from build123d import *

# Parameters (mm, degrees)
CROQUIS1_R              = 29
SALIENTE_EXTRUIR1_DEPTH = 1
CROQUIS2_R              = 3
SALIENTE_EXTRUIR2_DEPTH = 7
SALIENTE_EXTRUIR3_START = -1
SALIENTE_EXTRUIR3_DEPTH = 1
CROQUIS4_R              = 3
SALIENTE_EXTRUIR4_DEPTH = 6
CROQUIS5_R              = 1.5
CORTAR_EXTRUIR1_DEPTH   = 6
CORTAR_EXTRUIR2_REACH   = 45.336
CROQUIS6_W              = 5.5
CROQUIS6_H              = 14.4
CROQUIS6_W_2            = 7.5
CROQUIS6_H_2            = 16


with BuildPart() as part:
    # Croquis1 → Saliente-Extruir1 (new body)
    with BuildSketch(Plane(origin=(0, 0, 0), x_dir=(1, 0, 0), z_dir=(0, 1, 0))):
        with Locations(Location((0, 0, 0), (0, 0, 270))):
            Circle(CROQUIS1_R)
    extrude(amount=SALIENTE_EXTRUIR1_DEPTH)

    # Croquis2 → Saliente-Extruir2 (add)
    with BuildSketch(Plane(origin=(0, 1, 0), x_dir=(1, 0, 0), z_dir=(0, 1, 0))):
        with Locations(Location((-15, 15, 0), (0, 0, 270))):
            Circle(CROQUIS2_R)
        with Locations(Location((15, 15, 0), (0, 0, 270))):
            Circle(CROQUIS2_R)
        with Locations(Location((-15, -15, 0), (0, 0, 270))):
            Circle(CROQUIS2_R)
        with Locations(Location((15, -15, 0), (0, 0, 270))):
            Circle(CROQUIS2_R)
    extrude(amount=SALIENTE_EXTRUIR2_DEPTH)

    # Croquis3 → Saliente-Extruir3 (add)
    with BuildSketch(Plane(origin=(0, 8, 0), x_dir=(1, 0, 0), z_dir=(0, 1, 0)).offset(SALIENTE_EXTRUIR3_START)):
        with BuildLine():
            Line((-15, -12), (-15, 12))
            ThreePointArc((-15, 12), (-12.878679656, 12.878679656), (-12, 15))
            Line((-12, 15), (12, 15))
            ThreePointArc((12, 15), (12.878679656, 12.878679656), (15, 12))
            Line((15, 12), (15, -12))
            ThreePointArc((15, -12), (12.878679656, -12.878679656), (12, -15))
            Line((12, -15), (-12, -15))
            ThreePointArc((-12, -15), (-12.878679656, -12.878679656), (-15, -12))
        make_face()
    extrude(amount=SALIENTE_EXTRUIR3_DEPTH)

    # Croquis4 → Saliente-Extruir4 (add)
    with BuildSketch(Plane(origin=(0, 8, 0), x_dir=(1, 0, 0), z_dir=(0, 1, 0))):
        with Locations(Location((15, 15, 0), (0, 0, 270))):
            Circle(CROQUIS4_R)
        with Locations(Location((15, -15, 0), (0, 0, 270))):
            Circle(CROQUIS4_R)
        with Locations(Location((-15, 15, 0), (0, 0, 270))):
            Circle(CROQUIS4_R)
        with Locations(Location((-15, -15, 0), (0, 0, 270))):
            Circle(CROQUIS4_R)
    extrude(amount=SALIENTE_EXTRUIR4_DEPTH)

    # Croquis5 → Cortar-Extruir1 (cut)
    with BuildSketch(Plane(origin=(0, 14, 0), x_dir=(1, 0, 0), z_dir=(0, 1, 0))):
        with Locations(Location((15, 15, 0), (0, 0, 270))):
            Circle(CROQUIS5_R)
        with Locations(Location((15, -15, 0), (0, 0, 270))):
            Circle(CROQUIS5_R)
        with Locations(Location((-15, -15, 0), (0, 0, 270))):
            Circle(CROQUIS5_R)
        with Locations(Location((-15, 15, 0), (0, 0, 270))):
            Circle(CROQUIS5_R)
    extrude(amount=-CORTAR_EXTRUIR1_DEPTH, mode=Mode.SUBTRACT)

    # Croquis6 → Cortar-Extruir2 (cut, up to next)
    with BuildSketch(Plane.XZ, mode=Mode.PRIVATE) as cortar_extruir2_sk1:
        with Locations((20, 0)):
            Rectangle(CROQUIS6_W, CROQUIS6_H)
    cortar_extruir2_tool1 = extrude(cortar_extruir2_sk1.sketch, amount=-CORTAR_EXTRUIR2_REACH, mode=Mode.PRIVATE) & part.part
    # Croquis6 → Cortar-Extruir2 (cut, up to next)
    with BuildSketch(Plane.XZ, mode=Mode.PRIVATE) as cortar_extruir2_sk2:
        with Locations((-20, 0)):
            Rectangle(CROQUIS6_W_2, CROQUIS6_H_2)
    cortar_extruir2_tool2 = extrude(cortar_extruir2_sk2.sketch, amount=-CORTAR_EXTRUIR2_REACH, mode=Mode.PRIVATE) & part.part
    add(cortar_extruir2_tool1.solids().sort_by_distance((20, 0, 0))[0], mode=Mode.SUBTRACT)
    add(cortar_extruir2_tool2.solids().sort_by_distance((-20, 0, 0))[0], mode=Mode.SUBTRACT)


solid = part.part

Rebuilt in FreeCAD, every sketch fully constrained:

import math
import FreeCAD as App
import Part
import Sketcher
from FreeCAD import Vector
Q = App.Units.Quantity

doc = App.newDocument("Part")
params = doc.addObject("Spreadsheet::Sheet", "Params")
for row, (alias, value) in enumerate([
    ("sketch1_diameter", "58 mm"),
    ("pad1_length", "1 mm"),
    ("sketch2_diameter", "6 mm"),
    ("pad2_length", "7 mm"),
    ("sketch3_radius", "3 mm"),
    ("sketch3_width", "24 mm"),
    ("pad3_length", "1 mm"),
    ("sketch4_diameter", "6 mm"),
    ("pad4_length", "6 mm"),
    ("sketch5_diameter", "3 mm"),
    ("pocket1_length", "6 mm"),
    ("sketch6_width", "5.5 mm"),
    ("sketch6_height", "14.4 mm"),
    ("sketch7_height", "16 mm"),
    ("sketch7_width", "7.5 mm"),
], start=1):
    params.set(f"A{row}", alias)
    params.set(f"B{row}", "=" + value)
    params.setAlias(f"B{row}", alias)

body = doc.addObject("PartDesign::Body", "Body")

sketch1 = doc.addObject("Sketcher::SketchObject", "Sketch")
body.addObject(sketch1)
sketch1.AttachmentSupport = (doc.XZ_Plane, [""])
sketch1.MapMode = "FlatFace"
sketch1.addGeometry(Part.Circle(Vector(0, 0, 0), Vector(0, 0, 1), 29), False)
sketch1.addConstraint([
    Sketcher.Constraint("Coincident", 0, 3, -1, 1),
    Sketcher.Constraint("Diameter", 0, Q("58 mm")),
])
sketch1.setExpression("Constraints[1]", "Params.sketch1_diameter")
pad1 = doc.addObject("PartDesign::Pad", "Pad")
body.addObject(pad1)
pad1.Profile = sketch1
pad1.setExpression("Length", "Params.pad1_length")
pad1.Reversed = True

sketch2 = doc.addObject("Sketcher::SketchObject", "Sketch001")
body.addObject(sketch2)
sketch2.AttachmentSupport = (doc.XZ_Plane, [""])
sketch2.MapMode = "FlatFace"
sketch2.AttachmentOffset = App.Placement(Vector(0, 0, -1), App.Rotation())
sketch2.addGeometry([
    Part.Circle(Vector(-15, -15, 0), Vector(0, 0, 1), 3),
    Part.Circle(Vector(15, -15, 0), Vector(0, 0, 1), 3),
    Part.Circle(Vector(-15, 15, 0), Vector(0, 0, 1), 3),
    Part.Circle(Vector(15, 15, 0), Vector(0, 0, 1), 3),
], False)
sketch2.addConstraint([
    Sketcher.Constraint("Equal", 0, 1),
    Sketcher.Constraint("Equal", 1, 2),
    Sketcher.Constraint("Equal", 2, 3),
    Sketcher.Constraint("Symmetric", 1, 3, 2, 3, -1, 1),
    Sketcher.Constraint("Symmetric", 0, 3, 3, 3, -1, 1),
    Sketcher.Constraint("Symmetric", 0, 3, 1, 3, -2),
    Sketcher.Constraint("Diameter", 0, Q("6 mm")),
    Sketcher.Constraint("DistanceX", 0, 3, -1, 1, Q("15 mm")),
    Sketcher.Constraint("DistanceY", 0, 3, -1, 1, Q("15 mm")),
])
sketch2.setExpression("Constraints[6]", "Params.sketch2_diameter")
pad2 = doc.addObject("PartDesign::Pad", "Pad001")
body.addObject(pad2)
pad2.Profile = sketch2
pad2.setExpression("Length", "Params.pad2_length")
pad2.Reversed = True

sketch3 = doc.addObject("Sketcher::SketchObject", "Sketch002")
body.addObject(sketch3)
sketch3.AttachmentSupport = (doc.XZ_Plane, [""])
sketch3.MapMode = "FlatFace"
sketch3.AttachmentOffset = App.Placement(Vector(0, 0, -7), App.Rotation())
sketch3.addGeometry([
    Part.LineSegment(Vector(-15, -12, 0), Vector(-15, 12, 0)),
    Part.ArcOfCircle(Part.Circle(Vector(-15, 15, 0), Vector(0, 0, 1), 3), math.radians(-90), math.radians(0)),
    Part.LineSegment(Vector(-12, 15, 0), Vector(12, 15, 0)),
    Part.ArcOfCircle(Part.Circle(Vector(15, 15, 0), Vector(0, 0, 1), 3), math.radians(180), math.radians(270)),
    Part.LineSegment(Vector(15, 12, 0), Vector(15, -12, 0)),
    Part.ArcOfCircle(Part.Circle(Vector(15, -15, 0), Vector(0, 0, 1), 3), math.radians(90), math.radians(180)),
    Part.LineSegment(Vector(12, -15, 0), Vector(-12, -15, 0)),
    Part.ArcOfCircle(Part.Circle(Vector(-15, -15, 0), Vector(0, 0, 1), 3), math.radians(0), math.radians(90)),
], False)
sketch3.addConstraint([
    Sketcher.Constraint("Coincident", 0, 2, 1, 1),
    Sketcher.Constraint("Coincident", 1, 2, 2, 1),
    Sketcher.Constraint("Coincident", 2, 2, 3, 1),
    Sketcher.Constraint("Coincident", 3, 2, 4, 1),
    Sketcher.Constraint("Coincident", 4, 2, 5, 1),
    Sketcher.Constraint("Coincident", 5, 2, 6, 1),
    Sketcher.Constraint("Coincident", 6, 2, 7, 1),
    Sketcher.Constraint("Coincident", 7, 2, 0, 1),
    Sketcher.Constraint("Vertical", 0),
    Sketcher.Constraint("Horizontal", 2),
    Sketcher.Constraint("Vertical", 4),
    Sketcher.Constraint("Horizontal", 6),
    Sketcher.Constraint("Equal", 1, 3),
    Sketcher.Constraint("Equal", 3, 5),
    Sketcher.Constraint("Equal", 5, 7),
    Sketcher.Constraint("Symmetric", 1, 3, 5, 3, -1, 1),
    Sketcher.Constraint("Symmetric", 3, 3, 7, 3, -1, 1),
    Sketcher.Constraint("Symmetric", 1, 3, 3, 3, -2),
    Sketcher.Constraint("Horizontal", 3, 3, 1, 2),
    Sketcher.Constraint("Horizontal", 7, 3, 5, 2),
    Sketcher.Constraint("Vertical", 7, 3, 0, 2),
    Sketcher.Constraint("Vertical", 5, 3, 3, 2),
    Sketcher.Constraint("Equal", 6, 0),
    Sketcher.Constraint("Radius", 1, Q("3 mm")),
    Sketcher.Constraint("DistanceX", 2, 1, 2, 2, Q("24 mm")),
])
sketch3.setExpression("Constraints[23]", "Params.sketch3_radius")
sketch3.setExpression("Constraints[24]", "Params.sketch3_width")
pad3 = doc.addObject("PartDesign::Pad", "Pad002")
body.addObject(pad3)
pad3.Profile = sketch3
pad3.setExpression("Length", "Params.pad3_length")
pad3.Reversed = True

sketch4 = doc.addObject("Sketcher::SketchObject", "Sketch003")
body.addObject(sketch4)
sketch4.AttachmentSupport = (doc.XZ_Plane, [""])
sketch4.MapMode = "FlatFace"
sketch4.AttachmentOffset = App.Placement(Vector(0, 0, -8), App.Rotation())
sketch4.addGeometry([
    Part.Circle(Vector(15, -15, 0), Vector(0, 0, 1), 3),
    Part.Circle(Vector(15, 15, 0), Vector(0, 0, 1), 3),
    Part.Circle(Vector(-15, -15, 0), Vector(0, 0, 1), 3),
    Part.Circle(Vector(-15, 15, 0), Vector(0, 0, 1), 3),
], False)
sketch4.addConstraint([
    Sketcher.Constraint("Equal", 0, 1),
    Sketcher.Constraint("Equal", 1, 2),
    Sketcher.Constraint("Equal", 2, 3),
    Sketcher.Constraint("Symmetric", 1, 3, 2, 3, -1, 1),
    Sketcher.Constraint("Symmetric", 0, 3, 3, 3, -1, 1),
    Sketcher.Constraint("Symmetric", 0, 3, 2, 3, -2),
    Sketcher.Constraint("Diameter", 0, Q("6 mm")),
    Sketcher.Constraint("DistanceX", -1, 1, 0, 3, Q("15 mm")),
    Sketcher.Constraint("DistanceY", 0, 3, -1, 1, Q("15 mm")),
])
sketch4.setExpression("Constraints[6]", "Params.sketch4_diameter")
pad4 = doc.addObject("PartDesign::Pad", "Pad003")
body.addObject(pad4)
pad4.Profile = sketch4
pad4.setExpression("Length", "Params.pad4_length")
pad4.Reversed = True

sketch5 = doc.addObject("Sketcher::SketchObject", "Sketch004")
body.addObject(sketch5)
sketch5.AttachmentSupport = (doc.XZ_Plane, [""])
sketch5.MapMode = "FlatFace"
sketch5.AttachmentOffset = App.Placement(Vector(0, 0, -14), App.Rotation())
sketch5.addGeometry([
    Part.Circle(Vector(15, -15, 0), Vector(0, 0, 1), 1.5),
    Part.Circle(Vector(15, 15, 0), Vector(0, 0, 1), 1.5),
    Part.Circle(Vector(-15, 15, 0), Vector(0, 0, 1), 1.5),
    Part.Circle(Vector(-15, -15, 0), Vector(0, 0, 1), 1.5),
], False)
sketch5.addConstraint([
    Sketcher.Constraint("Equal", 0, 1),
    Sketcher.Constraint("Equal", 1, 2),
    Sketcher.Constraint("Equal", 2, 3),
    Sketcher.Constraint("Symmetric", 0, 3, 2, 3, -1, 1),
    Sketcher.Constraint("Symmetric", 1, 3, 3, 3, -1, 1),
    Sketcher.Constraint("Symmetric", 1, 3, 2, 3, -2),
    Sketcher.Constraint("Diameter", 0, Q("3 mm")),
    Sketcher.Constraint("DistanceX", -1, 1, 0, 3, Q("15 mm")),
    Sketcher.Constraint("DistanceY", 0, 3, -1, 1, Q("15 mm")),
])
sketch5.setExpression("Constraints[6]", "Params.sketch5_diameter")
pocket1 = doc.addObject("PartDesign::Pocket", "Pocket")
body.addObject(pocket1)
pocket1.Profile = sketch5
pocket1.setExpression("Length", "Params.pocket1_length")
pocket1.Reversed = True

sketch6 = doc.addObject("Sketcher::SketchObject", "Sketch005")
body.addObject(sketch6)
sketch6.AttachmentSupport = (doc.XZ_Plane, [""])
sketch6.MapMode = "FlatFace"
sketch6.addGeometry([
    Part.LineSegment(Vector(17.25, 7.2, 0), Vector(17.25, -7.2, 0)),
    Part.LineSegment(Vector(17.25, -7.2, 0), Vector(22.75, -7.2, 0)),
    Part.LineSegment(Vector(22.75, -7.2, 0), Vector(22.75, 7.2, 0)),
    Part.LineSegment(Vector(22.75, 7.2, 0), Vector(17.25, 7.2, 0)),
], False)
sketch6.addConstraint([
    Sketcher.Constraint("Coincident", 0, 2, 1, 1),
    Sketcher.Constraint("Coincident", 1, 2, 2, 1),
    Sketcher.Constraint("Coincident", 2, 2, 3, 1),
    Sketcher.Constraint("Coincident", 3, 2, 0, 1),
    Sketcher.Constraint("Vertical", 0),
    Sketcher.Constraint("Horizontal", 1),
    Sketcher.Constraint("Vertical", 2),
    Sketcher.Constraint("Horizontal", 3),
    Sketcher.Constraint("DistanceX", 1, 1, 1, 2, Q("5.5 mm")),
    Sketcher.Constraint("DistanceY", 0, 2, 0, 1, Q("14.4 mm")),
    Sketcher.Constraint("DistanceY", 0, 2, -1, 1, Q("7.2 mm")),
    Sketcher.Constraint("DistanceX", -1, 1, 0, 2, Q("17.25 mm")),
])
sketch6.setExpression("Constraints[8]", "Params.sketch6_width")
sketch6.setExpression("Constraints[9]", "Params.sketch6_height")
pocket2 = doc.addObject("PartDesign::Pocket", "Pocket001")
body.addObject(pocket2)
pocket2.Profile = sketch6
pocket2.Type = "UpToFirst"

sketch7 = doc.addObject("Sketcher::SketchObject", "Sketch006")
body.addObject(sketch7)
sketch7.AttachmentSupport = (doc.XZ_Plane, [""])
sketch7.MapMode = "FlatFace"
sketch7.addGeometry([
    Part.LineSegment(Vector(-23.75, 8, 0), Vector(-23.75, -8, 0)),
    Part.LineSegment(Vector(-23.75, -8, 0), Vector(-16.25, -8, 0)),
    Part.LineSegment(Vector(-16.25, -8, 0), Vector(-16.25, 8, 0)),
    Part.LineSegment(Vector(-16.25, 8, 0), Vector(-23.75, 8, 0)),
], False)
sketch7.addConstraint([
    Sketcher.Constraint("Coincident", 0, 2, 1, 1),
    Sketcher.Constraint("Coincident", 1, 2, 2, 1),
    Sketcher.Constraint("Coincident", 2, 2, 3, 1),
    Sketcher.Constraint("Coincident", 3, 2, 0, 1),
    Sketcher.Constraint("Vertical", 0),
    Sketcher.Constraint("Horizontal", 1),
    Sketcher.Constraint("Vertical", 2),
    Sketcher.Constraint("Horizontal", 3),
    Sketcher.Constraint("DistanceY", 0, 2, 0, 1, Q("16 mm")),
    Sketcher.Constraint("DistanceX", 1, 1, 1, 2, Q("7.5 mm")),
    Sketcher.Constraint("DistanceY", 0, 2, -1, 1, Q("8 mm")),
    Sketcher.Constraint("DistanceX", 0, 2, -1, 1, Q("23.75 mm")),
])
sketch7.setExpression("Constraints[8]", "Params.sketch7_height")
sketch7.setExpression("Constraints[9]", "Params.sketch7_width")
pocket3 = doc.addObject("PartDesign::Pocket", "Pocket002")
body.addObject(pocket3)
pocket3.Profile = sketch7
pocket3.Type = "UpToFirst"

doc.recompute()
